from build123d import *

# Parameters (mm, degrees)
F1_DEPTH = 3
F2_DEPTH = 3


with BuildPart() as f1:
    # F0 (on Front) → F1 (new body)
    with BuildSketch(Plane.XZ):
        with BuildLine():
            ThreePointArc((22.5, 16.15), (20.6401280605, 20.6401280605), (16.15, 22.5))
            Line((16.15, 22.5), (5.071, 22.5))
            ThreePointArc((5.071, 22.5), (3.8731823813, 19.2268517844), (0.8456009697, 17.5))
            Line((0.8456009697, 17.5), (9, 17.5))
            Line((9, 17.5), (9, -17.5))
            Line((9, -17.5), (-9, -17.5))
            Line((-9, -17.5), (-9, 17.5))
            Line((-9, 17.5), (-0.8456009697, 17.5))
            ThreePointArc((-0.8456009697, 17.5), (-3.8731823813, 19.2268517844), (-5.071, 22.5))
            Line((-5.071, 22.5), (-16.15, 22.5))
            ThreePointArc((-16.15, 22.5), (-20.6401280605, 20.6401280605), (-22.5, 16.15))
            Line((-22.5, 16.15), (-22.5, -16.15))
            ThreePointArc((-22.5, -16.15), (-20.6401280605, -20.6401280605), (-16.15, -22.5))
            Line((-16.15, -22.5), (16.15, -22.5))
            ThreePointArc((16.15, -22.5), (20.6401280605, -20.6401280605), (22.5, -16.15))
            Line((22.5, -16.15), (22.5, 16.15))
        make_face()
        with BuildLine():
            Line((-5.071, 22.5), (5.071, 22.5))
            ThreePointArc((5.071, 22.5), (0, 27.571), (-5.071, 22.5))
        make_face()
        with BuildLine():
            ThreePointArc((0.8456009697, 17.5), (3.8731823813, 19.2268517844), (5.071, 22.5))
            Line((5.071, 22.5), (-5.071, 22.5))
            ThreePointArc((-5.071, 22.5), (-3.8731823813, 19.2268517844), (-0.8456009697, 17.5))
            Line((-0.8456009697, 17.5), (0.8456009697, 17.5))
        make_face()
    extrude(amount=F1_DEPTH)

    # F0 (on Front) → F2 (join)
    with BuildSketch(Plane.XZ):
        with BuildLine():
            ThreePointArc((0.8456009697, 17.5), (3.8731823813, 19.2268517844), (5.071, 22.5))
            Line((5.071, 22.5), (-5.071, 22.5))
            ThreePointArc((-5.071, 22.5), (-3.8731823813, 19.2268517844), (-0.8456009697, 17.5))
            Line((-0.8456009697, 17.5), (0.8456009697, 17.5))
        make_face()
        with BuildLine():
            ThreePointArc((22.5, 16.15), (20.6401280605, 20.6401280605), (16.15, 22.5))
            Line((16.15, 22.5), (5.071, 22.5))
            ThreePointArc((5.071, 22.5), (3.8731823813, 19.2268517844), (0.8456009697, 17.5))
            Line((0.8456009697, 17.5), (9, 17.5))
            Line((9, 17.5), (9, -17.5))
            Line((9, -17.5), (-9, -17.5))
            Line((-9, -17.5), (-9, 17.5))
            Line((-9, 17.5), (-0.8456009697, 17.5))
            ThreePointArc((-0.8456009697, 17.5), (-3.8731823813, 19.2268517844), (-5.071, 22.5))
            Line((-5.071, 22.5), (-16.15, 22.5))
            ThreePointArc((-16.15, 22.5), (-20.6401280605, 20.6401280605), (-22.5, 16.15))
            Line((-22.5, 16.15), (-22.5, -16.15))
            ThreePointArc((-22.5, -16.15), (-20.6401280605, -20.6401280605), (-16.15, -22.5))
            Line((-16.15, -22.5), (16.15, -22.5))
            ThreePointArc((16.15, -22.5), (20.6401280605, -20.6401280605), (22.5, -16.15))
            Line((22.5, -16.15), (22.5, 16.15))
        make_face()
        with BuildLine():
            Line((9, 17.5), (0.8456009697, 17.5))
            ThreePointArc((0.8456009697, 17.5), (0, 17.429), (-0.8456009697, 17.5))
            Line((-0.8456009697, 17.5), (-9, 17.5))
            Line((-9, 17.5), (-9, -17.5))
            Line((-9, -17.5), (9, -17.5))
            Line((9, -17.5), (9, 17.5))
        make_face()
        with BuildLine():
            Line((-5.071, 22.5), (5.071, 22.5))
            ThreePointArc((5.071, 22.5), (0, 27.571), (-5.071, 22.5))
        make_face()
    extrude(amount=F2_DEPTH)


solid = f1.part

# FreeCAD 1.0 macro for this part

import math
import FreeCAD as App
import Part
import Sketcher


def add_polygon(sketch, points):
    """Adds a closed chain of lines whose ends are joined by coincident constraints."""
    first, n = sketch.GeometryCount, len(points)
    for a, b in zip(points, points[1:] + points[:1]):
        sketch.addGeometry(Part.LineSegment(App.Vector(*a, 0), App.Vector(*b, 0)), False)
    for i in range(n):
        sketch.addConstraint(Sketcher.Constraint("Coincident", first + i, 2, first + (i + 1) % n, 1))

doc = App.newDocument("Part")
body = doc.addObject("PartDesign::Body", "Body")

sketch1 = body.newObject("Sketcher::SketchObject", "Sketch")
sketch1.AttachmentSupport = (doc.getObject("XZ_Plane"), [""])
sketch1.MapMode = "FlatFace"
sketch1.addGeometry(Part.ArcOfCircle(Part.Circle(App.Vector(16, 16, 0), App.Vector(0, 0, 1), 6), math.radians(0), math.radians(90)), False)
sketch1.addGeometry(Part.LineSegment(App.Vector(16, 22, 0), App.Vector(5, 22, 0)), False)
sketch1.addGeometry(Part.ArcOfCircle(Part.Circle(App.Vector(0, 22, 0), App.Vector(0, 0, 1), 5), math.radians(0), math.radians(180)), False)
sketch1.addGeometry(Part.LineSegment(App.Vector(-5, 22, 0), App.Vector(-16, 22, 0)), False)
sketch1.addGeometry(Part.ArcOfCircle(Part.Circle(App.Vector(-16, 16, 0), App.Vector(0, 0, 1), 6), math.radians(90), math.radians(180)), False)
sketch1.addGeometry(Part.LineSegment(App.Vector(-22, 16, 0), App.Vector(-22, -16, 0)), False)
sketch1.addGeometry(Part.ArcOfCircle(Part.Circle(App.Vector(-16, -16, 0), App.Vector(0, 0, 1), 6), math.radians(180), math.radians(270)), False)
sketch1.addGeometry(Part.LineSegment(App.Vector(-16, -22, 0), App.Vector(16, -22, 0)), False)
sketch1.addGeometry(Part.ArcOfCircle(Part.Circle(App.Vector(16, -16, 0), App.Vector(0, 0, 1), 6), math.radians(-90), math.radians(0)), False)
sketch1.addGeometry(Part.LineSegment(App.Vector(22, -16, 0), App.Vector(22, 16, 0)), False)
add_polygon(sketch1, [(9, 18), (9, -18), (-9, -18), (-9, 18)])
sketch1.addConstraint([
    Sketcher.Constraint("Tangent", 0, 2, 1, 1),
    Sketcher.Constraint("Coincident", 1, 2, 2, 1),
    Sketcher.Constraint("Coincident", 2, 2, 3, 1),
    Sketcher.Constraint("Tangent", 3, 2, 4, 1),
    Sketcher.Constraint("Tangent", 4, 2, 5, 1),
    Sketcher.Constraint("Tangent", 5, 2, 6, 1),
    Sketcher.Constraint("Tangent", 6, 2, 7, 1),
    Sketcher.Constraint("Tangent", 7, 2, 8, 1),
    Sketcher.Constraint("Tangent", 8, 2, 9, 1),
    Sketcher.Constraint("Tangent", 9, 2, 0, 1),
    Sketcher.Constraint("Horizontal", 1),
    Sketcher.Constraint("Horizontal", 3),
    Sketcher.Constraint("Vertical", 5),
    Sketcher.Constraint("Horizontal", 7),
    Sketcher.Constraint("Vertical", 9),
    Sketcher.Constraint("Vertical", 10),
    Sketcher.Constraint("Horizontal", 11),
    Sketcher.Constraint("Vertical", 12),
    Sketcher.Constraint("Horizontal", 13),
    Sketcher.Constraint("Equal", 0, 4),
    Sketcher.Constraint("Equal", 4, 6),
    Sketcher.Constraint("Equal", 6, 8),
    Sketcher.Constraint("Symmetric", 0, 3, 6, 3, -1, 1),
    Sketcher.Constraint("Symmetric", 10, 2, 12, 2, -1, 1),
    Sketcher.Constraint("Symmetric", 1, 2, 2, 2, -2),
    Sketcher.Constraint("Horizontal", 2, 3, 0, 2),
    Sketcher.Constraint("Equal", 7, 5),
    Sketcher.Constraint("DistanceX", 11, 2, 11, 1, 18.0),
    Sketcher.Constraint("DistanceY", 10, 2, 10, 1, 35.0),
    Sketcher.Constraint("Radius", 0, 6.35),
    Sketcher.Constraint("DistanceX", 7, 1, 7, 2, 32.3),
    Sketcher.Constraint("Radius", 2, 5.071),
])
pad1 = body.newObject("PartDesign::Pad", "Pad")
pad1.Profile = sketch1
pad1.Length = 3

sketch2 = body.newObject("Sketcher::SketchObject", "Sketch001")
sketch2.AttachmentSupport = (doc.getObject("XZ_Plane"), [""])
sketch2.MapMode = "FlatFace"
sketch2.addGeometry([
    Part.ArcOfCircle(Part.Circle(App.Vector(-16.1, 16.1, 0), App.Vector(0, 0, 1), 6.3), math.radians(90), math.radians(180)),
    Part.LineSegment(App.Vector(-22.5, 16.1, 0), App.Vector(-22.5, -16.1, 0)),
    Part.ArcOfCircle(Part.Circle(App.Vector(-16.1, -16.1, 0), App.Vector(0, 0, 1), 6.3), math.radians(180), math.radians(270)),
    Part.LineSegment(App.Vector(-16.1, -22.5, 0), App.Vector(16.1, -22.5, 0)),
    Part.ArcOfCircle(Part.Circle(App.Vector(16.1, -16.1, 0), App.Vector(0, 0, 1), 6.3), math.radians(-90), math.radians(0)),
    Part.LineSegment(App.Vector(22.5, -16.1, 0), App.Vector(22.5, 16.1, 0)),
    Part.ArcOfCircle(Part.Circle(App.Vector(16.1, 16.1, 0), App.Vector(0, 0, 1), 6.3), math.radians(0), math.radians(90)),
    Part.LineSegment(App.Vector(16.1, 22.5, 0), App.Vector(5.1, 22.5, 0)),
    Part.ArcOfCircle(Part.Circle(App.Vector(0, 22.5, 0), App.Vector(0, 0, 1), 5.1), math.radians(0), math.radians(180)),
    Part.LineSegment(App.Vector(-5.1, 22.5, 0), App.Vector(-16.1, 22.5, 0)),
    Part.LineSegment(App.Vector(-0.8, 17.5, 0), App.Vector(0.8, 17.5, 0)),
    Part.ArcOfCircle(Part.Circle(App.Vector(0, 22.5, 0), App.Vector(0, 0, 1), 5.1), math.radians(-99.6), math.radians(-80.4)),
], False)
sketch2.addConstraint([
    Sketcher.Constraint("Tangent", 0, 2, 1, 1),
    Sketcher.Constraint("Tangent", 1, 2, 2, 1),
    Sketcher.Constraint("Tangent", 2, 2, 3, 1),
    Sketcher.Constraint("Tangent", 3, 2, 4, 1),
    Sketcher.Constraint("Tangent", 4, 2, 5, 1),
    Sketcher.Constraint("Tangent", 5, 2, 6, 1),
    Sketcher.Constraint("Tangent", 6, 2, 7, 1),
    Sketcher.Constraint("Coincident", 7, 2, 8, 1),
    Sketcher.Constraint("Coincident", 8, 2, 9, 1),
    Sketcher.Constraint("Tangent", 9, 2, 0, 1),
    Sketcher.Constraint("Coincident", 10, 1, 11, 1),
    Sketcher.Constraint("Coincident", 11, 2, 10, 2),
    Sketcher.Constraint("Vertical", 1),
    Sketcher.Constraint("Horizontal", 3),
    Sketcher.Constraint("Vertical", 5),
    Sketcher.Constraint("Horizontal", 7),
    Sketcher.Constraint("Horizontal", 9),
    Sketcher.Constraint("Horizontal", 10),
    Sketcher.Constraint("Coincident", 11, 3, 8, 3),
    Sketcher.Constraint("Equal", 0, 2),
    Sketcher.Constraint("Equal", 2, 4),
    Sketcher.Constraint("Equal", 4, 6),
    Sketcher.Constraint("Equal", 8, 11),
    Sketcher.Constraint("Symmetric", 0, 3, 4, 3, -1, 1),
    Sketcher.Constraint("Symmetric", 7, 2, 8, 2, -2),
    Sketcher.Constraint("Horizontal", 11, 3, 6, 2),
    Sketcher.Constraint("Equal", 3, 1),
    Sketcher.Constraint("Radius", 0, 6.35),
    Sketcher.Constraint("DistanceX", 3, 1, 3, 2, 32.3),
    Sketcher.Constraint("Radius", 8, 5.071),
    Sketcher.Constraint("DistanceY", 10, 1, 8, 3, 5.0),
])
pad2 = body.newObject("PartDesign::Pad", "Pad001")
pad2.Profile = sketch2
pad2.Length = 3

doc.recompute()
